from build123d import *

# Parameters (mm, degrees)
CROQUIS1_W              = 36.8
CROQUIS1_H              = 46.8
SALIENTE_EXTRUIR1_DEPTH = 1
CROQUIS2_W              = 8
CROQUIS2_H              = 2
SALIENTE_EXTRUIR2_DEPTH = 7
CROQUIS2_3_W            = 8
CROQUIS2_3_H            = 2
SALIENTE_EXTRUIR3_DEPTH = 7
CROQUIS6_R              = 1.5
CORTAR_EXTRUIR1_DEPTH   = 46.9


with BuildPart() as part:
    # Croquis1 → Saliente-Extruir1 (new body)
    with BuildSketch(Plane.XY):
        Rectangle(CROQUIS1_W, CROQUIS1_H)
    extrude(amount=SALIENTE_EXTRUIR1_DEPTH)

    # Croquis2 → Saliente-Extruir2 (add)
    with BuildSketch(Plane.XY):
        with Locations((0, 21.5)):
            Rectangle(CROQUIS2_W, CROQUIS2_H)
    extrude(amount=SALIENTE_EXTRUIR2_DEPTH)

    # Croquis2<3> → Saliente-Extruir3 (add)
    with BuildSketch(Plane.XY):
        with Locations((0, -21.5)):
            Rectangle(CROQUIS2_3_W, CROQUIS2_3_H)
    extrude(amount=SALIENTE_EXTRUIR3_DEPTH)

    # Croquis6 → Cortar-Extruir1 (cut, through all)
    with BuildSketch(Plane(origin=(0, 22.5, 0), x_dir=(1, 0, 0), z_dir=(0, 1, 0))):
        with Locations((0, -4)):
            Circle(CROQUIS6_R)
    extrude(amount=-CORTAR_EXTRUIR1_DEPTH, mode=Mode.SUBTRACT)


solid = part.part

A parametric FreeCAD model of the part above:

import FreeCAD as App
import Part
import Sketcher

doc = App.newDocument("Part")
body = doc.addObject("PartDesign::Body", "Body")

# Sketch on XY plane
sketch1 = body.newObject("Sketcher::SketchObject", "Sketch")
sketch1.AttachmentSupport = (doc.getObject("XY_Plane"), [""])
sketch1.MapMode = "FlatFace"
sketch1.addGeometry([
    Part.LineSegment(App.Vector(-18, 23, 0), App.Vector(-18, -23, 0)),
    Part.LineSegment(App.Vector(-18, -23, 0), App.Vector(18, -23, 0)),
    Part.LineSegment(App.Vector(18, -23, 0), App.Vector(18, 23, 0)),
    Part.LineSegment(App.Vector(18, 23, 0), App.Vector(-18, 23, 0)),
], False)
sketch1.addConstraint([
    Sketcher.Constraint("Coincident", 0, 2, 1, 1),
    Sketcher.Constraint("Coincident", 1, 2, 2, 1),
    Sketcher.Constraint("Coincident", 2, 2, 3, 1),
    Sketcher.Constraint("Coincident", 3, 2, 0, 1),
    Sketcher.Constraint("Vertical", 0),
    Sketcher.Constraint("Horizontal", 1),
    Sketcher.Constraint("Vertical", 2),
    Sketcher.Constraint("Horizontal", 3),
    Sketcher.Constraint("Symmetric", 0, 2, 2, 2, -1, 1),
    Sketcher.Constraint("DistanceX", 1, 1, 1, 2, 36.8),
    Sketcher.Constraint("DistanceY", 0, 2, 0, 1, 46.8),
])
pad1 = body.newObject("PartDesign::Pad", "Pad")
pad1.Profile = sketch1
pad1.Length = 1

# Sketch on XY plane
sketch2 = body.newObject("Sketcher::SketchObject", "Sketch001")
sketch2.AttachmentSupport = (doc.getObject("XY_Plane"), [""])
sketch2.MapMode = "FlatFace"
sketch2.addGeometry([
    Part.LineSegment(App.Vector(-4, 22.5, 0), App.Vector(-4, 20.5, 0)),
    Part.LineSegment(App.Vector(-4, 20.5, 0), App.Vector(4, 20.5, 0)),
    Part.LineSegment(App.Vector(4, 20.5, 0), App.Vector(4, 22.5, 0)),
    Part.LineSegment(App.Vector(4, 22.5, 0), App.Vector(-4, 22.5, 0)),
], False)
sketch2.addConstraint([
    Sketcher.Constraint("Coincident", 0, 2, 1, 1),
    Sketcher.Constraint("Coincident", 1, 2, 2, 1),
    Sketcher.Constraint("Coincident", 2, 2, 3, 1),
    Sketcher.Constraint("Coincident", 3, 2, 0, 1),
    Sketcher.Constraint("Vertical", 0),
    Sketcher.Constraint("Horizontal", 1),
    Sketcher.Constraint("Vertical", 2),
    Sketcher.Constraint("Horizontal", 3),
    Sketcher.Constraint("DistanceX", 1, 1, 1, 2, 8.0),
    Sketcher.Constraint("DistanceY", 0, 2, 0, 1, 2.0),
    Sketcher.Constraint("DistanceX", 0, 2, -1, 1, 4.0),
    Sketcher.Constraint("DistanceY", -1, 1, 0, 2, 20.5),
])
pad2 = body.newObject("PartDesign::Pad", "Pad001")
pad2.Profile = sketch2
pad2.Length = 7

# Sketch on XY plane
sketch3 = body.newObject("Sketcher::SketchObject", "Sketch002")
sketch3.AttachmentSupport = (doc.getObject("XY_Plane"), [""])
sketch3.MapMode = "FlatFace"
sketch3.addGeometry([
    Part.LineSegment(App.Vector(-4, -20.5, 0), App.Vector(-4, -22.5, 0)),
    Part.LineSegment(App.Vector(-4, -22.5, 0), App.Vector(4, -22.5, 0)),
    Part.LineSegment(App.Vector(4, -22.5, 0), App.Vector(4, -20.5, 0)),
    Part.LineSegment(App.Vector(4, -20.5, 0), App.Vector(-4, -20.5, 0)),
], False)
sketch3.addConstraint([
    Sketcher.Constraint("Coincident", 0, 2, 1, 1),
    Sketcher.Constraint("Coincident", 1, 2, 2, 1),
    Sketcher.Constraint("Coincident", 2, 2, 3, 1),
    Sketcher.Constraint("Coincident", 3, 2, 0, 1),
    Sketcher.Constraint("Vertical", 0),
    Sketcher.Constraint("Horizontal", 1),
    Sketcher.Constraint("Vertical", 2),
    Sketcher.Constraint("Horizontal", 3),
    Sketcher.Constraint("DistanceX", 1, 1, 1, 2, 8.0),
    Sketcher.Constraint("DistanceY", 0, 2, 0, 1, 2.0),
    Sketcher.Constraint("DistanceX", 0, 2, -1, 1, 4.0),
    Sketcher.Constraint("DistanceY", 0, 2, -1, 1, 22.5),
])
pad3 = body.newObject("PartDesign::Pad", "Pad002")
pad3.Profile = sketch3
pad3.Length = 7

# Sketch on XZ plane
sketch4 = body.newObject("Sketcher::SketchObject", "Sketch003")
sketch4.AttachmentSupport = (doc.getObject("XZ_Plane"), [""])
sketch4.MapMode = "FlatFace"
sketch4.AttachmentOffset = App.Placement(App.Vector(0, 0, -22.5), App.Rotation())
sketch4.addGeometry(Part.Circle(App.Vector(0, 4, 0), App.Vector(0, 0, 1), 1.5), False)
sketch4.addConstraint([
    Sketcher.Constraint("PointOnObject", 0, 3, -2),
    Sketcher.Constraint("Diameter", 0, 3.0),
    Sketcher.Constraint("DistanceY", -1, 1, 0, 3, 4.0),
])
pocket1 = body.newObject("PartDesign::Pocket", "Pocket")
pocket1.Profile = sketch4
pocket1.Type = "ThroughAll"
pocket1.Reversed = True

doc.recompute()
